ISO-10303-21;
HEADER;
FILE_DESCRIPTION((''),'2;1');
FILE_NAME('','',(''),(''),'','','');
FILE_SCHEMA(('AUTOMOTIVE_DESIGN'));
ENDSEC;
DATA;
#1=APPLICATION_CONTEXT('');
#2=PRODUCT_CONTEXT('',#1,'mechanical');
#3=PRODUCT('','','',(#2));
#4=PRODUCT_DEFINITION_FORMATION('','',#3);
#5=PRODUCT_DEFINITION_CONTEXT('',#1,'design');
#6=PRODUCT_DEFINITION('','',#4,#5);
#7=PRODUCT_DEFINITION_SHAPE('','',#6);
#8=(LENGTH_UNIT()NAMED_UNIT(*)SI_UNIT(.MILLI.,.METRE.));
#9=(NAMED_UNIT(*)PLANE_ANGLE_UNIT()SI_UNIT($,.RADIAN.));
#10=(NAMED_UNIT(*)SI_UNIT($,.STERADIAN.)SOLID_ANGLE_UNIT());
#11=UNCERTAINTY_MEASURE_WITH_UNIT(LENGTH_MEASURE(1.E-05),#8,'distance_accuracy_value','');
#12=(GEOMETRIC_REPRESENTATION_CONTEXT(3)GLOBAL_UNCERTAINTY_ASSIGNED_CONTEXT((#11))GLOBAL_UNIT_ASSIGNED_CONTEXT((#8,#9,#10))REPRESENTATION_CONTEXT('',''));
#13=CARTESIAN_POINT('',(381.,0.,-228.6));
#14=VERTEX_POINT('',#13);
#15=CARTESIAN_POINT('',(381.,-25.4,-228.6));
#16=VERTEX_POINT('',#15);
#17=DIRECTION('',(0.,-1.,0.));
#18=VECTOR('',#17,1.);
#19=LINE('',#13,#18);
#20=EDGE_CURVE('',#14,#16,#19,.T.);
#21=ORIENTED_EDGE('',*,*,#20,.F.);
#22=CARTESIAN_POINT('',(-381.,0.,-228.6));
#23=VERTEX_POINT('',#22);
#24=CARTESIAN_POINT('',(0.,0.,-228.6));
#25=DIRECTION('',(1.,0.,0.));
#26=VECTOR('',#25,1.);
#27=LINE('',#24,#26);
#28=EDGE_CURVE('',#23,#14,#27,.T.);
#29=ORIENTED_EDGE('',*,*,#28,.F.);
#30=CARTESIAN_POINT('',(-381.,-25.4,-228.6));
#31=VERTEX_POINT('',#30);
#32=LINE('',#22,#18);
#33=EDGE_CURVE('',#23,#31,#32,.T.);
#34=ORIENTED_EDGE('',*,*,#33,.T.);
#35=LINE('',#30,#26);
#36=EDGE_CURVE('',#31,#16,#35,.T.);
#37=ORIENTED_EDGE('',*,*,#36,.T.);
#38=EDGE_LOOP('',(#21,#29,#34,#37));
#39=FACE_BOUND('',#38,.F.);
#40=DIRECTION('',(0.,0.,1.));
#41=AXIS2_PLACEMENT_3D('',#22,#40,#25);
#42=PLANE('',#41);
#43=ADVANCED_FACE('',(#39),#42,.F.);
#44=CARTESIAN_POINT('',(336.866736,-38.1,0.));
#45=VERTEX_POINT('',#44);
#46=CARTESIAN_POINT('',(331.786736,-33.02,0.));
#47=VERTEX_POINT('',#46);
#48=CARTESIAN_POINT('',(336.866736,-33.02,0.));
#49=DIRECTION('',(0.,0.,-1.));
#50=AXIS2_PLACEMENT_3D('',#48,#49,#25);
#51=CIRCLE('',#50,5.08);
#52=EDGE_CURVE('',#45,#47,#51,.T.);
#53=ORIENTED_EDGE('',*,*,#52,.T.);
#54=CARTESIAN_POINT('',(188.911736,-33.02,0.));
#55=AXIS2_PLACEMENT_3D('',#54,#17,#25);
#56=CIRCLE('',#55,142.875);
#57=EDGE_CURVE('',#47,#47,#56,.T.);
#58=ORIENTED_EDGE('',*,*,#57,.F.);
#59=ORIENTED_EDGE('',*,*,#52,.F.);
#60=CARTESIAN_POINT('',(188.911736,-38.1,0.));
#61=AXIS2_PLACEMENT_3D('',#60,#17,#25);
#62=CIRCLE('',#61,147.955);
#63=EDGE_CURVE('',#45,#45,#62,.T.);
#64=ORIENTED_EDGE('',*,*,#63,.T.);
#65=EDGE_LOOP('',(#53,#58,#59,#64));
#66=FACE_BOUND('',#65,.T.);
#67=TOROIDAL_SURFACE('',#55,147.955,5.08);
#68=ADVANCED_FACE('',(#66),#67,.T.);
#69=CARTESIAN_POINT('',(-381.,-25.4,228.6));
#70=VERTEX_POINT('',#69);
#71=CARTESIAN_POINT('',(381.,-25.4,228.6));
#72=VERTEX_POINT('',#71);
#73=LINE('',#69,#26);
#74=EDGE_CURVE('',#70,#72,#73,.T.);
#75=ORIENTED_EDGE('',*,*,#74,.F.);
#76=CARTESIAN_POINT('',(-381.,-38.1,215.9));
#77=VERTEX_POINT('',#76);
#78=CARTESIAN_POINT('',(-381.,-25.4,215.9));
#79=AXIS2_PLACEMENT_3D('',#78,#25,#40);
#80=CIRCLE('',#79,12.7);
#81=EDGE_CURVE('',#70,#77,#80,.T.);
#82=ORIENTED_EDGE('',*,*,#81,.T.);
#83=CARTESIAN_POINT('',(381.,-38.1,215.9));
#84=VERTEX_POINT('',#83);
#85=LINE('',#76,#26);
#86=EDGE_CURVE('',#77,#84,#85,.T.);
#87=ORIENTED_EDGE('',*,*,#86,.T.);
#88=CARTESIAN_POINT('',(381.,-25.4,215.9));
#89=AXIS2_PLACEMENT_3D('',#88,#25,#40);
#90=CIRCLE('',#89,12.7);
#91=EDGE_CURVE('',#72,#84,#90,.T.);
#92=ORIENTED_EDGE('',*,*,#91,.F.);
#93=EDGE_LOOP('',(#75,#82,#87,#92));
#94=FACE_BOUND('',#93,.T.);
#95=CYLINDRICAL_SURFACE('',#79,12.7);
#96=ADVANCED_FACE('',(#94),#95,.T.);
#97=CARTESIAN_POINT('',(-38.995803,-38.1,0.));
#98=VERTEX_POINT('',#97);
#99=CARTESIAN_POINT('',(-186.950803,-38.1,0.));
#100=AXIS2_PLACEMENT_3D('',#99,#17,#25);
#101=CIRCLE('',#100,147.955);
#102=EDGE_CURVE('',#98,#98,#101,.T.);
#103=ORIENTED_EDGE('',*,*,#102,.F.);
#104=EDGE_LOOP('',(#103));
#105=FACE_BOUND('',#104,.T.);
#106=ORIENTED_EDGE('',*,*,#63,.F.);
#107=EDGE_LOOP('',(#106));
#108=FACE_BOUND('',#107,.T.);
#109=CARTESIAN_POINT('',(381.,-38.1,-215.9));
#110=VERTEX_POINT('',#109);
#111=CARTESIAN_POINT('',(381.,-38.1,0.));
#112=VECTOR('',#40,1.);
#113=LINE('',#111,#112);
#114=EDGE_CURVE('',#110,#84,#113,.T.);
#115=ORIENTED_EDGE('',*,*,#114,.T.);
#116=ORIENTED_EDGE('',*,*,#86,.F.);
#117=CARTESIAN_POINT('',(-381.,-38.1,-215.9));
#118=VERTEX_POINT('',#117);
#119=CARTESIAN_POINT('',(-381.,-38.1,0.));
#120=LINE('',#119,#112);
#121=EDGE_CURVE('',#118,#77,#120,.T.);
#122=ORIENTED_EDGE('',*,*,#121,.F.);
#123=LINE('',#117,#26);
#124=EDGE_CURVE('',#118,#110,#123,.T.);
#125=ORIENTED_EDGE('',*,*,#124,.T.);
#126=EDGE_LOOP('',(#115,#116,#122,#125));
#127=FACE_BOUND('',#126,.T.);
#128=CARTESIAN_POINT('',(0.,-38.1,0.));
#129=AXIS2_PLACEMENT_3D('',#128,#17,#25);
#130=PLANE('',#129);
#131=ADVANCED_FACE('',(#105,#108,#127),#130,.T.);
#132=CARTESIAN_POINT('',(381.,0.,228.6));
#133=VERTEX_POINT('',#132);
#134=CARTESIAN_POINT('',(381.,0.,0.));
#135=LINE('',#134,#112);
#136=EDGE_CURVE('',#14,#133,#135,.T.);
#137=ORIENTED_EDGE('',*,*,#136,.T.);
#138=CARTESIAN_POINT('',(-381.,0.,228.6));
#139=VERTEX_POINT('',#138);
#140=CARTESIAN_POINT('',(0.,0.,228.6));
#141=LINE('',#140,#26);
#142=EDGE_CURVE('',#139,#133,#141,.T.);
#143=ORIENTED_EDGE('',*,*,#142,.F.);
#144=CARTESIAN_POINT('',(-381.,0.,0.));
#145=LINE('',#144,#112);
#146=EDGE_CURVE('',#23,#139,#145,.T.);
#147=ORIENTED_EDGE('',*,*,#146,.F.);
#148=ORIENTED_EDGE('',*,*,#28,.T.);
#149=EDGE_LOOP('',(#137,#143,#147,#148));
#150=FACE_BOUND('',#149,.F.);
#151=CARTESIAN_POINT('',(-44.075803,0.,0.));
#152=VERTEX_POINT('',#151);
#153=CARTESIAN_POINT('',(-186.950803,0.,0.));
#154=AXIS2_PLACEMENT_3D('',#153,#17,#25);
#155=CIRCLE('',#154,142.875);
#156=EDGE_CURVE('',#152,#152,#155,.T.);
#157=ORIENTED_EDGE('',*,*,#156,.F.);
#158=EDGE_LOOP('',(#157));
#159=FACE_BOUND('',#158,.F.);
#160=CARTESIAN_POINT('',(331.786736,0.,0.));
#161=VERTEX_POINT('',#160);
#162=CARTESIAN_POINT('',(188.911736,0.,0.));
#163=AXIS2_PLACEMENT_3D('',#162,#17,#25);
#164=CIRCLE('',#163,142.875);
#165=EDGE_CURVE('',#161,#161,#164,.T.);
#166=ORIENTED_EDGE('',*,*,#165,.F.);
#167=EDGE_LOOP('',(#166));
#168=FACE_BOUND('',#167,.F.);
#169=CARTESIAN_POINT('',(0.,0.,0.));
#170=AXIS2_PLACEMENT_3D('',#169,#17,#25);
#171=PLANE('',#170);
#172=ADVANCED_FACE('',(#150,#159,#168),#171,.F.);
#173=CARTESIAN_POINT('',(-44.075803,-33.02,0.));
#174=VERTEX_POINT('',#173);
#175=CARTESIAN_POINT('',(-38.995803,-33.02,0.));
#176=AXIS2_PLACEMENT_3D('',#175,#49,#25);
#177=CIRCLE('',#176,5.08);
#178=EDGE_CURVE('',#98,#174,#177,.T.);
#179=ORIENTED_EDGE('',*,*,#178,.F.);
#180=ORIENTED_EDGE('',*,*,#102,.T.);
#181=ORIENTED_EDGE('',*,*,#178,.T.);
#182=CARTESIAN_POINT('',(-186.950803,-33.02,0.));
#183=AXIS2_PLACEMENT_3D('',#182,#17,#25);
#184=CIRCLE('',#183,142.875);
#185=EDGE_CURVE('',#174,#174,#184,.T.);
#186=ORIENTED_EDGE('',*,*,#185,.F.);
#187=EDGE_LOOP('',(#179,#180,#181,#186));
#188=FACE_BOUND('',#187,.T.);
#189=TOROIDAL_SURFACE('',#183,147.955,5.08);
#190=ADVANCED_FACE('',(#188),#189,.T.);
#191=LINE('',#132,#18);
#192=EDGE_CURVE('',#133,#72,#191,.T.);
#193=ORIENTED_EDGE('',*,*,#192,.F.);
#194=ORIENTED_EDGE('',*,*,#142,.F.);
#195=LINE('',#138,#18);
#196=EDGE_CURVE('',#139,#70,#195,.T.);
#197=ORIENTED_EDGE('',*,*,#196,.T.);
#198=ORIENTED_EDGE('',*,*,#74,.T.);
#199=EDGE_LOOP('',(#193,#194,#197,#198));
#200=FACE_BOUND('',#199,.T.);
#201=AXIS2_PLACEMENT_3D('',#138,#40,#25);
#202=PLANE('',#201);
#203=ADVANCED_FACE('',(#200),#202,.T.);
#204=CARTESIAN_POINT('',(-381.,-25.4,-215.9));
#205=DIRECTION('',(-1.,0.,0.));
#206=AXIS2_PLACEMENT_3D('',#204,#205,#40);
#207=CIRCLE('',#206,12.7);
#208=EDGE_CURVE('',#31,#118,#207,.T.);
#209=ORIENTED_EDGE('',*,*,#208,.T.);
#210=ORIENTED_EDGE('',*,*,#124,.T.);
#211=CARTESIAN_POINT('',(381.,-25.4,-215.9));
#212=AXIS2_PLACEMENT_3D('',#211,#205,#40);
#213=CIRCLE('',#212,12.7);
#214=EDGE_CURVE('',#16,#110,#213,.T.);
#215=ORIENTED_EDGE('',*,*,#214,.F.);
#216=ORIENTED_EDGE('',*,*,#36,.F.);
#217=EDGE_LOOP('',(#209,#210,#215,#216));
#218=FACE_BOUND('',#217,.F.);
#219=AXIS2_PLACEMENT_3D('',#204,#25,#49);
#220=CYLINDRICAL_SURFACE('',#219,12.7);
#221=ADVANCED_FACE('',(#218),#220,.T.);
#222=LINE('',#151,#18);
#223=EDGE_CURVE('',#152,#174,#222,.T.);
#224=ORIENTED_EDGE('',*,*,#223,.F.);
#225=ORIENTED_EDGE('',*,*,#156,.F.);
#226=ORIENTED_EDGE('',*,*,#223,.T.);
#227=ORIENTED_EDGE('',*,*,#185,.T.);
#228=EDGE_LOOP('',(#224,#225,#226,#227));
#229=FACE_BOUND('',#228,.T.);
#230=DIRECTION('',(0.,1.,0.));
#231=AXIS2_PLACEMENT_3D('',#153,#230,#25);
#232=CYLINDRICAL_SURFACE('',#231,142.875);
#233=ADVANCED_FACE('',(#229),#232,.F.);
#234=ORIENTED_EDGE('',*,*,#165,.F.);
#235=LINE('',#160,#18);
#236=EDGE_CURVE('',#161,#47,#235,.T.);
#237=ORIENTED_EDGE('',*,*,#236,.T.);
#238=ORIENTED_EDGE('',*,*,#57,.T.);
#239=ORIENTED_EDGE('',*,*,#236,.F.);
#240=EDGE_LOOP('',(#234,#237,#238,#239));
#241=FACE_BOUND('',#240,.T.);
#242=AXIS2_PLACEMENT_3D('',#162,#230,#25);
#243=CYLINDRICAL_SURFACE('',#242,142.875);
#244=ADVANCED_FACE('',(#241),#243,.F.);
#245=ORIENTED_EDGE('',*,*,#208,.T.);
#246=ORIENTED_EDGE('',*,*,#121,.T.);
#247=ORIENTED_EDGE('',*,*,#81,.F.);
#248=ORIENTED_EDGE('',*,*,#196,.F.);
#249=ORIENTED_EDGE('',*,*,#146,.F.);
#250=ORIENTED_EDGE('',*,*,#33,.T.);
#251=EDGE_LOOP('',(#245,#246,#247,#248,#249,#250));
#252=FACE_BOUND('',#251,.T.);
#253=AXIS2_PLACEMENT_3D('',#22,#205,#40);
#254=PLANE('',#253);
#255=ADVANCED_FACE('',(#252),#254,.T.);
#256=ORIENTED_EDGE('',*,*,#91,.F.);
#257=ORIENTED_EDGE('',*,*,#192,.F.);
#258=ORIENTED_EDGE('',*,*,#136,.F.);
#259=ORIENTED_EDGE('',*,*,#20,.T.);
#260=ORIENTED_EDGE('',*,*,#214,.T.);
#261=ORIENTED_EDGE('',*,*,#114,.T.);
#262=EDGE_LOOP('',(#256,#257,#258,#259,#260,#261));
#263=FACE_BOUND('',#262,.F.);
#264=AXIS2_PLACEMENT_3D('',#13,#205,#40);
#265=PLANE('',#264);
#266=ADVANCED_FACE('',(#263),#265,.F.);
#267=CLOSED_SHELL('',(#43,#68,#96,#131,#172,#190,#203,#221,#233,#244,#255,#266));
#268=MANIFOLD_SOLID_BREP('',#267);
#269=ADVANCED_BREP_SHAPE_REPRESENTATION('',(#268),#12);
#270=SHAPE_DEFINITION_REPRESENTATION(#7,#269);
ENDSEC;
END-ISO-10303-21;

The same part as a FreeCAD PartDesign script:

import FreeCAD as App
import Part
import Sketcher

V = App.Vector
Q = App.Units.Quantity


def edges_at(feature, points):
    """Names of the edges that pass closest to the given points."""
    edges = feature.Shape.Edges
    near = lambda p: min(range(len(edges)), key=lambda i: edges[i].distToShape(Part.Vertex(*p))[0])
    return sorted({f"Edge{near(p) + 1}" for p in points})

doc = App.newDocument("Part")
body = doc.addObject("PartDesign::Body", "Body")

sketch1 = doc.addObject("Sketcher::SketchObject", "Sketch")
body.addObject(sketch1)
sketch1.AttachmentSupport = (doc.XZ_Plane, [""])
sketch1.MapMode = "FlatFace"
sketch1.addGeometry([
    Part.LineSegment(V(-381, 229, 0), V(-381, -229, 0)),
    Part.LineSegment(V(-381, -229, 0), V(381, -229, 0)),
    Part.LineSegment(V(381, -229, 0), V(381, 229, 0)),
    Part.LineSegment(V(381, 229, 0), V(-381, 229, 0)),
    Part.Circle(V(-187, 0, 0), V(0, 0, 1), 143),
    Part.Circle(V(189, 0, 0), V(0, 0, 1), 143),
], False)
sketch1.addConstraint([
    Sketcher.Constraint("Coincident", 0, 2, 1, 1),
    Sketcher.Constraint("Coincident", 1, 2, 2, 1),
    Sketcher.Constraint("Coincident", 2, 2, 3, 1),
    Sketcher.Constraint("Coincident", 3, 2, 0, 1),
    Sketcher.Constraint("Vertical", 0),
    Sketcher.Constraint("Horizontal", 1),
    Sketcher.Constraint("Vertical", 2),
    Sketcher.Constraint("Horizontal", 3),
    Sketcher.Constraint("Equal", 4, 5),
    Sketcher.Constraint("Symmetric", 0, 2, 2, 2, -1, 1),
    Sketcher.Constraint("PointOnObject", 4, 3, -1),
    Sketcher.Constraint("PointOnObject", 5, 3, -1),
    Sketcher.Constraint("Diameter", 4, Q("11.25 in")),
    Sketcher.Constraint("DistanceX", 1, 1, 1, 2, Q("30 in")),
    Sketcher.Constraint("DistanceY", 0, 2, 0, 1, Q("18 in")),
    Sketcher.Constraint("DistanceX", 4, 3, 5, 3, Q("375.862539 mm")),
    Sketcher.Constraint("DistanceX", 4, 3, -1, 1, Q("186.950803 mm")),
])
pad1 = doc.addObject("PartDesign::Pad", "Pad")
body.addObject(pad1)
pad1.Profile = sketch1
pad1.Length = Q("1.5 in")
doc.recompute()

fillet = doc.addObject("PartDesign::Fillet", "Fillet")
body.addObject(fillet)
fillet.Base = (pad1, edges_at(pad1, [(0, -38.1, 228.6), (0, -38.1, -228.6)]))
fillet.Radius = Q("0.5 in")
doc.recompute()

fillet2 = doc.addObject("PartDesign::Fillet", "Fillet001")
body.addObject(fillet2)
fillet2.Base = (fillet, edges_at(fillet, [(-329.826, -38.1, 0), (46.037, -38.1, 0)]))
fillet2.Radius = Q("0.2 in")

doc.recompute()
